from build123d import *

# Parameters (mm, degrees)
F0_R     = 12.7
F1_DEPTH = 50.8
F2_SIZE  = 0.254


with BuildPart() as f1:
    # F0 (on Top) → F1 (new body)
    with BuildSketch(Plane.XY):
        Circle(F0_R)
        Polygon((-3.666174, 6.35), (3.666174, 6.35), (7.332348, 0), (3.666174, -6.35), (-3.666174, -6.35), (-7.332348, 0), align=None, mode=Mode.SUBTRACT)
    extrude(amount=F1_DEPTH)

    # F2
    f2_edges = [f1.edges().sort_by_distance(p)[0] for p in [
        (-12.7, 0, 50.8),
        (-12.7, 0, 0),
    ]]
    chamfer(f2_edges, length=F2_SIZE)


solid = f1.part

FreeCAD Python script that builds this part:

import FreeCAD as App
import Part
import Sketcher

V = App.Vector
Q = App.Units.Quantity


def edges_at(feature, points):
    """Names of the edges that pass closest to the given points."""
    edges = feature.Shape.Edges
    near = lambda p: min(range(len(edges)), key=lambda i: edges[i].distToShape(Part.Vertex(*p))[0])
    return sorted({f"Edge{near(p) + 1}" for p in points})

doc = App.newDocument("Part")
params = doc.addObject("Spreadsheet::Sheet", "Params")
for row, (alias, value) in enumerate([
    ("sketch1_diameter", "1 in"),
    ("pad1_length", "2 in"),
    ("chamfer_size", "0.01 in"),
], start=1):
    params.set(f"A{row}", alias)
    params.set(f"B{row}", "=" + value)
    params.setAlias(f"B{row}", alias)

body = doc.addObject("PartDesign::Body", "Body")

# Sketch on XY plane
sketch1 = doc.addObject("Sketcher::SketchObject", "Sketch")
body.addObject(sketch1)
sketch1.AttachmentSupport = (doc.XY_Plane, [""])
sketch1.MapMode = "FlatFace"
sketch1.addGeometry([
    Part.Circle(V(0, 0, 0), V(0, 0, 1), 13),  # 0
    Part.LineSegment(V(-7, 0, 0), V(-4, 6, 0)),  # 1
    Part.LineSegment(V(-4, 6, 0), V(4, 6, 0)),  # 2
    Part.LineSegment(V(4, 6, 0), V(7, 0, 0)),  # 3
    Part.LineSegment(V(7, 0, 0), V(4, -6, 0)),  # 4
    Part.LineSegment(V(4, -6, 0), V(-4, -6, 0)),  # 5
    Part.LineSegment(V(-4, -6, 0), V(-7, 0, 0)),  # 6
], False)
sketch1.addConstraint([
    Sketcher.Constraint("Coincident", 1, 2, 2, 1),
    Sketcher.Constraint("Coincident", 2, 2, 3, 1),
    Sketcher.Constraint("Coincident", 3, 2, 4, 1),
    Sketcher.Constraint("Coincident", 4, 2, 5, 1),
    Sketcher.Constraint("Coincident", 5, 2, 6, 1),
    Sketcher.Constraint("Coincident", 6, 2, 1, 1),
    Sketcher.Constraint("Horizontal", 2),
    Sketcher.Constraint("Horizontal", 5),
    Sketcher.Constraint("Coincident", 0, 3, -1, 1),
    Sketcher.Constraint("Symmetric", 1, 2, 4, 2, -1, 1),
    Sketcher.Constraint("Symmetric", 3, 2, 6, 2, -1, 1),
    Sketcher.Constraint("PointOnObject", 3, 2, -1),
    Sketcher.Constraint("Parallel", 3, 6),
    Sketcher.Constraint("Vertical", 2, 2, 4, 2),
    Sketcher.Constraint("Diameter", 0, Q("1 in")),
    Sketcher.Constraint("Angle", 1, Q("60.000001 deg")),
    Sketcher.Constraint("DistanceY", 4, 2, 2, 2, Q("0.5 in")),
    Sketcher.Constraint("DistanceX", 2, 1, 2, 2, 7.332348),
])
sketch1.setExpression("Constraints[14]", "Params.sketch1_diameter")
pad1 = doc.addObject("PartDesign::Pad", "Pad")
body.addObject(pad1)
pad1.Profile = sketch1
pad1.setExpression("Length", "Params.pad1_length")
doc.recompute()

chamfer = doc.addObject("PartDesign::Chamfer", "Chamfer")
body.addObject(chamfer)
chamfer.Base = (pad1, edges_at(pad1, [(-12.7, 0, 50.8), (-12.7, 0, 0)]))
chamfer.setExpression("Size", "Params.chamfer_size")

doc.recompute()
